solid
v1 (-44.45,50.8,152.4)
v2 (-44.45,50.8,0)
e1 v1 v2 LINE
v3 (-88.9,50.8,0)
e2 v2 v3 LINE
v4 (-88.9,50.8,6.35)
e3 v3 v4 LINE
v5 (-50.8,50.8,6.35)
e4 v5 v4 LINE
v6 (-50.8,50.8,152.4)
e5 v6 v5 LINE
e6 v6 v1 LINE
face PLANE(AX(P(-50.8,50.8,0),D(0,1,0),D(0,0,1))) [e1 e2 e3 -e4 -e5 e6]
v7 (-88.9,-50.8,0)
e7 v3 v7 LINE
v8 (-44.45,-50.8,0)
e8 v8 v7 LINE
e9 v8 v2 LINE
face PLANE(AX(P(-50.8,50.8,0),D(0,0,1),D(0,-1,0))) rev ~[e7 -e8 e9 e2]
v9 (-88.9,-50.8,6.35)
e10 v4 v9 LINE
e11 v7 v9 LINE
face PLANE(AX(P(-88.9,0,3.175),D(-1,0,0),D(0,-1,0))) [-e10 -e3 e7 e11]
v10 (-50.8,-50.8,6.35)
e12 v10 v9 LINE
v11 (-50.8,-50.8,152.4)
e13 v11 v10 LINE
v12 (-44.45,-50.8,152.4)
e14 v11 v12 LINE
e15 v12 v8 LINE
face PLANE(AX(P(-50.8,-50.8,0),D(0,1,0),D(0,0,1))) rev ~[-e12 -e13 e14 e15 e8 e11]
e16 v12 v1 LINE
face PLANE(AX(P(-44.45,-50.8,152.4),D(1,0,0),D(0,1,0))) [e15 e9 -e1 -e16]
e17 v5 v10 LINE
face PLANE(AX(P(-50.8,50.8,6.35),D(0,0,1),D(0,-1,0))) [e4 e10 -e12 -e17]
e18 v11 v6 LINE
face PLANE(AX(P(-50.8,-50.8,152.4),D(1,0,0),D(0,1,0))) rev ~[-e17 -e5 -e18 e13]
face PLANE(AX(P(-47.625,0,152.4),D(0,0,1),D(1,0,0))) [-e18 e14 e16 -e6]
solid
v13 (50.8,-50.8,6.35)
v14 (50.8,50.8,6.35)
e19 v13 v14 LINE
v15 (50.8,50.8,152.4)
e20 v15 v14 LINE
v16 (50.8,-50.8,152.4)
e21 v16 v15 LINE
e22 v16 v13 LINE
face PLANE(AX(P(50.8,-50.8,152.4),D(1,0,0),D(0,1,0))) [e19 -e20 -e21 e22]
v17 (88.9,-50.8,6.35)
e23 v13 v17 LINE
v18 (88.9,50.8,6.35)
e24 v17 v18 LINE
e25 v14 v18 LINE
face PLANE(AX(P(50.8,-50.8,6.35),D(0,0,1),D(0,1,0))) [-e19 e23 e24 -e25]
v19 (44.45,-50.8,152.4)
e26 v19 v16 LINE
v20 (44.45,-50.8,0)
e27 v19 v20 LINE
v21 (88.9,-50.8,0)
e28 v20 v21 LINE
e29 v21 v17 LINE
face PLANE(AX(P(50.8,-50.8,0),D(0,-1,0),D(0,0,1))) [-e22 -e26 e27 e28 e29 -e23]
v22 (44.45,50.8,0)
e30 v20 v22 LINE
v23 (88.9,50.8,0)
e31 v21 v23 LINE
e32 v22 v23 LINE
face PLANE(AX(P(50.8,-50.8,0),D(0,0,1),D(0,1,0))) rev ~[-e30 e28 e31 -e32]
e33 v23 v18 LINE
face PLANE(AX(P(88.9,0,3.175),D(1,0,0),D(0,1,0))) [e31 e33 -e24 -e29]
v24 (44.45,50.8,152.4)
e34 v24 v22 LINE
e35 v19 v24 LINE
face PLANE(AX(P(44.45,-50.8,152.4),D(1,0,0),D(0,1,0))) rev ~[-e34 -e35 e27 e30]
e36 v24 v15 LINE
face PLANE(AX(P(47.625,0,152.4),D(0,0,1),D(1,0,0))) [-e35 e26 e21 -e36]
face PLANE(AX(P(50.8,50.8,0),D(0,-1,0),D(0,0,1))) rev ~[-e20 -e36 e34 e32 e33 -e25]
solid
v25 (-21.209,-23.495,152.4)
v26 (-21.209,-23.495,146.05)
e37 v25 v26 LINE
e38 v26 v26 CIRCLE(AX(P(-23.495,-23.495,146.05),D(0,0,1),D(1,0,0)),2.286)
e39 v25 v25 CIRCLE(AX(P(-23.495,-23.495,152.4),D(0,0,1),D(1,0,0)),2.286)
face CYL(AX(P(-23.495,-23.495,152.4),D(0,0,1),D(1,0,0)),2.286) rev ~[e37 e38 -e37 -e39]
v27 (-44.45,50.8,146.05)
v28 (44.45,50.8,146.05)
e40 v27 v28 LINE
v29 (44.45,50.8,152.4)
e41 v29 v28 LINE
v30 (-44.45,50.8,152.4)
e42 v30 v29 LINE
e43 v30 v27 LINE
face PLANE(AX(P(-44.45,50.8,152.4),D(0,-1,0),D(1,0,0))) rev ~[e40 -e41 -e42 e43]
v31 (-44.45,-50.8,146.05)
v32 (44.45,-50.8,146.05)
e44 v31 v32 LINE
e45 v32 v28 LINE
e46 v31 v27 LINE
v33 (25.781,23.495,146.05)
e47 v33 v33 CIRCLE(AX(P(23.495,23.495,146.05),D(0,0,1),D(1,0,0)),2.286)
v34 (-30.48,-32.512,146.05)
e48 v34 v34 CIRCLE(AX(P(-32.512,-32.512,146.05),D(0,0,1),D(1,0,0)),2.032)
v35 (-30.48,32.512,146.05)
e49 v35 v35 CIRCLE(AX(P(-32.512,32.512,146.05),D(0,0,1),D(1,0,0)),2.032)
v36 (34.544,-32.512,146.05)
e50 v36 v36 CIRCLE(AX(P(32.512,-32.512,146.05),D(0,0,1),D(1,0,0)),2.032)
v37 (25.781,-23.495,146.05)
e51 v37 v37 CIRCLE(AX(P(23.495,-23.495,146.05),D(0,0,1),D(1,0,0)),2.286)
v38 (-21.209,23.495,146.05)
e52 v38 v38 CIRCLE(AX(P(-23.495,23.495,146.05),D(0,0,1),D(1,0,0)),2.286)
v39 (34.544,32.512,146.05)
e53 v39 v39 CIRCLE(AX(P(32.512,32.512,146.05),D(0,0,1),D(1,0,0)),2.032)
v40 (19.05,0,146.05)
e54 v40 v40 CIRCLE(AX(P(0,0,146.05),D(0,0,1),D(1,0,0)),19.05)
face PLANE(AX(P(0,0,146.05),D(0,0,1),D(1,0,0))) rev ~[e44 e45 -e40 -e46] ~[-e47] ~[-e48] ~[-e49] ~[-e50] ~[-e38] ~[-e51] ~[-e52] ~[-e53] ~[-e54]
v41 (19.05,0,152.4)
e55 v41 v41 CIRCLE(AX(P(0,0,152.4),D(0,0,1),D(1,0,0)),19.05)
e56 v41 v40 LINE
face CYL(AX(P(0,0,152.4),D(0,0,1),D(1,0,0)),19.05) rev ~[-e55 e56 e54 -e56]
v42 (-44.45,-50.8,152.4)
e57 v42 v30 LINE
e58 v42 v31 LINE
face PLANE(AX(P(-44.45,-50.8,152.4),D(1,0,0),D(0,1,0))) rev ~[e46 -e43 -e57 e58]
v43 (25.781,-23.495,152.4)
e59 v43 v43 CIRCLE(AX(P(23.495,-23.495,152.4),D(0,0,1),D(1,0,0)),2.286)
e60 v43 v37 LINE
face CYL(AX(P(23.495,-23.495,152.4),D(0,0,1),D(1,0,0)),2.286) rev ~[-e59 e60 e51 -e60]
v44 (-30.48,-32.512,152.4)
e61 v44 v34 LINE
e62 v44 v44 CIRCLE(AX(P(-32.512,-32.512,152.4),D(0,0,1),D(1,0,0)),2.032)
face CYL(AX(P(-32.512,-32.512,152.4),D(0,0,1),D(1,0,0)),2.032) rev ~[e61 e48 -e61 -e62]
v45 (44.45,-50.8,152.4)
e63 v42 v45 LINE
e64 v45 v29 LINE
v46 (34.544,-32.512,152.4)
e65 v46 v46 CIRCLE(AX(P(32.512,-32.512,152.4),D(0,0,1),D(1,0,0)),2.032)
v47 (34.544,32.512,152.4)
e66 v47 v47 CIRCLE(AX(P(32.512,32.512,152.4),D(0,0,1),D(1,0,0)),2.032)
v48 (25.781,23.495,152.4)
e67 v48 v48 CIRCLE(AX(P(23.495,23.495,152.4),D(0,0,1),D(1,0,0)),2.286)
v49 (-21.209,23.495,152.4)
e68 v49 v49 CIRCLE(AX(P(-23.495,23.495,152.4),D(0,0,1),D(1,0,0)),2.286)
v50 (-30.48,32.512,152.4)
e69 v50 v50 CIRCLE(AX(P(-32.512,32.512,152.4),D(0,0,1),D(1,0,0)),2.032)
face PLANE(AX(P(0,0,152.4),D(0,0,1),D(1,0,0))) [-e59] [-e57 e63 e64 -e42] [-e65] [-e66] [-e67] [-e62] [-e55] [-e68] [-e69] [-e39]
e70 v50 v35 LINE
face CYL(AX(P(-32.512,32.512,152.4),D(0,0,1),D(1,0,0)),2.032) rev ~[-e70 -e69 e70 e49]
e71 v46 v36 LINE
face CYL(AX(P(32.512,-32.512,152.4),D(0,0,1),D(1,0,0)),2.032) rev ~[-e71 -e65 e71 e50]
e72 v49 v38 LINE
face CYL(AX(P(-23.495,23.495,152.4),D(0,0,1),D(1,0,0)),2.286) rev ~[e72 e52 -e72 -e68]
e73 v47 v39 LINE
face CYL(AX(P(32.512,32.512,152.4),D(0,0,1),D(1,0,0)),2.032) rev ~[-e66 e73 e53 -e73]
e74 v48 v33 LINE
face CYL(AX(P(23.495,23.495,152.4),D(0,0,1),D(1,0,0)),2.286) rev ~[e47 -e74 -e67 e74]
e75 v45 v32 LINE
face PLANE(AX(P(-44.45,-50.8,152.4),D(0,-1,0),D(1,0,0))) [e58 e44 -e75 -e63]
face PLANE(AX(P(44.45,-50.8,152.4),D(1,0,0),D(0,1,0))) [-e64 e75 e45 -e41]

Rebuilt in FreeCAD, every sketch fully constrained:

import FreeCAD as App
import Part
import Sketcher
from FreeCAD import Vector
Q = App.Units.Quantity

doc = App.newDocument("Part")
params = doc.addObject("Spreadsheet::Sheet", "Params")
for row, (alias, value) in enumerate([
    ("sketch1_diameter", "1.5 in"),
    ("sketch1_diameter2", "0.16 in"),
    ("sketch1_diameter3", "0.18 in"),
    ("sketch1_height", "4 in"),
    ("sketch1_width", "3.5 in"),
    ("pad1_length", "0.25 in"),
    ("sketch2_height", "4 in"),
    ("sketch2_width", "0.25 in"),
    ("pad2_length", "6 in"),
    ("sketch3_width", "4 in"),
    ("sketch3_height", "0.25 in"),
    ("pad3_length", "1.5 in"),
    ("sketch4_height", "4 in"),
    ("sketch4_width", "0.25 in"),
    ("pad4_length", "6 in"),
    ("sketch5_width", "4 in"),
    ("sketch5_height", "0.25 in"),
    ("pad5_length", "1.5 in"),
], start=1):
    params.set(f"A{row}", alias)
    params.set(f"B{row}", "=" + value)
    params.setAlias(f"B{row}", alias)

body = doc.addObject("PartDesign::Body", "Body")

sketch1 = body.newObject("Sketcher::SketchObject", "Sketch")
sketch1.AttachmentSupport = (doc.getObject("XY_Plane"), [""])
sketch1.MapMode = "FlatFace"
sketch1.AttachmentOffset = App.Placement(Vector(0, 0, 6 * 25.4), App.Rotation())
sketch1.addGeometry([
    Part.LineSegment(Vector(-44.5, 50.8, 0), Vector(-44.5, -50.8, 0)),
    Part.LineSegment(Vector(-44.5, -50.8, 0), Vector(44.5, -50.8, 0)),
    Part.LineSegment(Vector(44.5, -50.8, 0), Vector(44.5, 50.8, 0)),
    Part.LineSegment(Vector(44.5, 50.8, 0), Vector(-44.5, 50.8, 0)),
    Part.Circle(Vector(-32.5, -32.5, 0), Vector(0, 0, 1), 2),
    Part.Circle(Vector(-23.5, -23.5, 0), Vector(0, 0, 1), 2.3),
    Part.Circle(Vector(32.5, -32.5, 0), Vector(0, 0, 1), 2),
    Part.Circle(Vector(23.5, -23.5, 0), Vector(0, 0, 1), 2.3),
    Part.Circle(Vector(-23.5, 23.5, 0), Vector(0, 0, 1), 2.3),
    Part.Circle(Vector(-32.5, 32.5, 0), Vector(0, 0, 1), 2),
    Part.Circle(Vector(0, 0, 0), Vector(0, 0, 1), 19.1),
    Part.Circle(Vector(23.5, 23.5, 0), Vector(0, 0, 1), 2.3),
    Part.Circle(Vector(32.5, 32.5, 0), Vector(0, 0, 1), 2),
], False)
sketch1.addConstraint([
    Sketcher.Constraint("Coincident", 0, 2, 1, 1),
    Sketcher.Constraint("Coincident", 1, 2, 2, 1),
    Sketcher.Constraint("Coincident", 2, 2, 3, 1),
    Sketcher.Constraint("Coincident", 3, 2, 0, 1),
    Sketcher.Constraint("Vertical", 0),
    Sketcher.Constraint("Horizontal", 1),
    Sketcher.Constraint("Vertical", 2),
    Sketcher.Constraint("Horizontal", 3),
    Sketcher.Constraint("Coincident", 10, 3, -1, 1),
    Sketcher.Constraint("Equal", 4, 6),
    Sketcher.Constraint("Equal", 5, 7),
    Sketcher.Constraint("Equal", 7, 8),
    Sketcher.Constraint("Equal", 6, 9),
    Sketcher.Constraint("Equal", 8, 11),
    Sketcher.Constraint("Equal", 9, 12),
    Sketcher.Constraint("Symmetric", 7, 3, 8, 3, -1, 1),
    Sketcher.Constraint("Symmetric", 6, 3, 9, 3, -1, 1),
    Sketcher.Constraint("Symmetric", 5, 3, 11, 3, -1, 1),
    Sketcher.Constraint("Symmetric", 4, 3, 12, 3, -1, 1),
    Sketcher.Constraint("Symmetric", 0, 2, 2, 2, -1, 1),
    Sketcher.Constraint("Symmetric", 4, 3, 6, 3, -2),
    Sketcher.Constraint("Symmetric", 5, 3, 7, 3, -2),
    Sketcher.Constraint("Diameter", 10, Q("1.5 in")),
    Sketcher.Constraint("Diameter", 4, Q("0.16 in")),
    Sketcher.Constraint("Diameter", 5, Q("0.18 in")),
    Sketcher.Constraint("DistanceY", 0, 2, 0, 1, Q("4 in")),
    Sketcher.Constraint("DistanceX", 1, 1, 1, 2, Q("3.5 in")),
    Sketcher.Constraint("DistanceX", 4, 3, -1, 1, Q("1.28 in")),
    Sketcher.Constraint("DistanceY", 4, 3, -1, 1, Q("1.28 in")),
    Sketcher.Constraint("DistanceX", 5, 3, 7, 3, Q("1.85 in")),
    Sketcher.Constraint("DistanceY", 5, 3, 8, 3, Q("1.85 in")),
])
sketch1.setExpression("Constraints[22]", "Params.sketch1_diameter")
sketch1.setExpression("Constraints[23]", "Params.sketch1_diameter2")
sketch1.setExpression("Constraints[24]", "Params.sketch1_diameter3")
sketch1.setExpression("Constraints[25]", "Params.sketch1_height")
sketch1.setExpression("Constraints[26]", "Params.sketch1_width")
pad1 = body.newObject("PartDesign::Pad", "Pad")
pad1.Profile = sketch1
pad1.setExpression("Length", "Params.pad1_length")
pad1.Reversed = True
body2 = doc.addObject("PartDesign::Body", "Body001")

sketch2 = body2.newObject("Sketcher::SketchObject", "Sketch001")
sketch2.AttachmentSupport = (doc.getObject("XY_Plane001"), [""])
sketch2.MapMode = "FlatFace"
sketch2.AttachmentOffset = App.Placement(Vector(0, 0, 6 * 25.4), App.Rotation())
sketch2.addGeometry([
    Part.LineSegment(Vector(-51, 51, 0), Vector(-51, -51, 0)),
    Part.LineSegment(Vector(-51, -51, 0), Vector(-44, -51, 0)),
    Part.LineSegment(Vector(-44, -51, 0), Vector(-44, 51, 0)),
    Part.LineSegment(Vector(-44, 51, 0), Vector(-51, 51, 0)),
], False)
sketch2.addConstraint([
    Sketcher.Constraint("Coincident", 0, 2, 1, 1),
    Sketcher.Constraint("Coincident", 1, 2, 2, 1),
    Sketcher.Constraint("Coincident", 2, 2, 3, 1),
    Sketcher.Constraint("Coincident", 3, 2, 0, 1),
    Sketcher.Constraint("Vertical", 0),
    Sketcher.Constraint("Horizontal", 1),
    Sketcher.Constraint("Vertical", 2),
    Sketcher.Constraint("Horizontal", 3),
    Sketcher.Constraint("DistanceY", 0, 2, 0, 1, Q("4 in")),
    Sketcher.Constraint("DistanceX", 0, 2, -1, 1, Q("2 in")),
    Sketcher.Constraint("DistanceY", 0, 2, -1, 1, Q("2 in")),
    Sketcher.Constraint("DistanceX", 1, 1, 1, 2, Q("0.25 in")),
])
sketch2.setExpression("Constraints[8]", "Params.sketch2_height")
sketch2.setExpression("Constraints[11]", "Params.sketch2_width")
pad2 = body2.newObject("PartDesign::Pad", "Pad001")
pad2.Profile = sketch2
pad2.setExpression("Length", "Params.pad2_length")
pad2.Reversed = True

sketch3 = body2.newObject("Sketcher::SketchObject", "Sketch002")
sketch3.AttachmentSupport = (doc.getObject("YZ_Plane001"), [""])
sketch3.MapMode = "FlatFace"
sketch3.AttachmentOffset = App.Placement(Vector(0, 0, -2 * 25.4), App.Rotation())
sketch3.addGeometry([
    Part.LineSegment(Vector(51, 6, 0), Vector(51, 0, 0)),
    Part.LineSegment(Vector(51, 0, 0), Vector(-51, 0, 0)),
    Part.LineSegment(Vector(-51, 0, 0), Vector(-51, 6, 0)),
    Part.LineSegment(Vector(-51, 6, 0), Vector(51, 6, 0)),
], False)
sketch3.addConstraint([
    Sketcher.Constraint("Coincident", 0, 2, 1, 1),
    Sketcher.Constraint("Coincident", 1, 2, 2, 1),
    Sketcher.Constraint("Coincident", 2, 2, 3, 1),
    Sketcher.Constraint("Coincident", 3, 2, 0, 1),
    Sketcher.Constraint("Vertical", 0),
    Sketcher.Constraint("Horizontal", 1),
    Sketcher.Constraint("Vertical", 2),
    Sketcher.Constraint("Horizontal", 3),
    Sketcher.Constraint("Symmetric", 0, 2, 1, 2, -1, 1),
    Sketcher.Constraint("DistanceX", 1, 2, 1, 1, Q("4 in")),
    Sketcher.Constraint("DistanceY", 0, 2, 0, 1, Q("0.25 in")),
])
sketch3.setExpression("Constraints[9]", "Params.sketch3_width")
sketch3.setExpression("Constraints[10]", "Params.sketch3_height")
pad3 = body2.newObject("PartDesign::Pad", "Pad002")
pad3.Profile = sketch3
pad3.setExpression("Length", "Params.pad3_length")
pad3.Reversed = True
body3 = doc.addObject("PartDesign::Body", "Body002")

sketch4 = body3.newObject("Sketcher::SketchObject", "Sketch003")
sketch4.AttachmentSupport = (doc.getObject("XY_Plane002"), [""])
sketch4.MapMode = "FlatFace"
sketch4.AttachmentOffset = App.Placement(Vector(0, 0, 6 * 25.4), App.Rotation())
sketch4.addGeometry([
    Part.LineSegment(Vector(44, 51, 0), Vector(44, -51, 0)),
    Part.LineSegment(Vector(44, -51, 0), Vector(51, -51, 0)),
    Part.LineSegment(Vector(51, -51, 0), Vector(51, 51, 0)),
    Part.LineSegment(Vector(51, 51, 0), Vector(44, 51, 0)),
], False)
sketch4.addConstraint([
    Sketcher.Constraint("Coincident", 0, 2, 1, 1),
    Sketcher.Constraint("Coincident", 1, 2, 2, 1),
    Sketcher.Constraint("Coincident", 2, 2, 3, 1),
    Sketcher.Constraint("Coincident", 3, 2, 0, 1),
    Sketcher.Constraint("Vertical", 0),
    Sketcher.Constraint("Horizontal", 1),
    Sketcher.Constraint("Vertical", 2),
    Sketcher.Constraint("Horizontal", 3),
    Sketcher.Constraint("DistanceY", 0, 2, 0, 1, Q("4 in")),
    Sketcher.Constraint("DistanceY", 0, 2, -1, 1, Q("2 in")),
    Sketcher.Constraint("DistanceX", -1, 1, 1, 2, Q("2 in")),
    Sketcher.Constraint("DistanceX", 1, 1, 1, 2, Q("0.25 in")),
])
sketch4.setExpression("Constraints[8]", "Params.sketch4_height")
sketch4.setExpression("Constraints[11]", "Params.sketch4_width")
pad4 = body3.newObject("PartDesign::Pad", "Pad003")
pad4.Profile = sketch4
pad4.setExpression("Length", "Params.pad4_length")
pad4.Reversed = True

sketch5 = body3.newObject("Sketcher::SketchObject", "Sketch004")
sketch5.AttachmentSupport = (doc.getObject("YZ_Plane002"), [""])
sketch5.MapMode = "FlatFace"
sketch5.AttachmentOffset = App.Placement(Vector(0, 0, 2 * 25.4), App.Rotation())
sketch5.addGeometry([
    Part.LineSegment(Vector(-51, 6, 0), Vector(-51, 0, 0)),
    Part.LineSegment(Vector(-51, 0, 0), Vector(51, 0, 0)),
    Part.LineSegment(Vector(51, 0, 0), Vector(51, 6, 0)),
    Part.LineSegment(Vector(51, 6, 0), Vector(-51, 6, 0)),
], False)
sketch5.addConstraint([
    Sketcher.Constraint("Coincident", 0, 2, 1, 1),
    Sketcher.Constraint("Coincident", 1, 2, 2, 1),
    Sketcher.Constraint("Coincident", 2, 2, 3, 1),
    Sketcher.Constraint("Coincident", 3, 2, 0, 1),
    Sketcher.Constraint("Vertical", 0),
    Sketcher.Constraint("Horizontal", 1),
    Sketcher.Constraint("Vertical", 2),
    Sketcher.Constraint("Horizontal", 3),
    Sketcher.Constraint("Symmetric", 0, 2, 1, 2, -1, 1),
    Sketcher.Constraint("DistanceX", 1, 1, 1, 2, Q("4 in")),
    Sketcher.Constraint("DistanceY", 0, 2, 0, 1, Q("0.25 in")),
])
sketch5.setExpression("Constraints[9]", "Params.sketch5_width")
sketch5.setExpression("Constraints[10]", "Params.sketch5_height")
pad5 = body3.newObject("PartDesign::Pad", "Pad004")
pad5.Profile = sketch5
pad5.setExpression("Length", "Params.pad5_length")

doc.recompute()
